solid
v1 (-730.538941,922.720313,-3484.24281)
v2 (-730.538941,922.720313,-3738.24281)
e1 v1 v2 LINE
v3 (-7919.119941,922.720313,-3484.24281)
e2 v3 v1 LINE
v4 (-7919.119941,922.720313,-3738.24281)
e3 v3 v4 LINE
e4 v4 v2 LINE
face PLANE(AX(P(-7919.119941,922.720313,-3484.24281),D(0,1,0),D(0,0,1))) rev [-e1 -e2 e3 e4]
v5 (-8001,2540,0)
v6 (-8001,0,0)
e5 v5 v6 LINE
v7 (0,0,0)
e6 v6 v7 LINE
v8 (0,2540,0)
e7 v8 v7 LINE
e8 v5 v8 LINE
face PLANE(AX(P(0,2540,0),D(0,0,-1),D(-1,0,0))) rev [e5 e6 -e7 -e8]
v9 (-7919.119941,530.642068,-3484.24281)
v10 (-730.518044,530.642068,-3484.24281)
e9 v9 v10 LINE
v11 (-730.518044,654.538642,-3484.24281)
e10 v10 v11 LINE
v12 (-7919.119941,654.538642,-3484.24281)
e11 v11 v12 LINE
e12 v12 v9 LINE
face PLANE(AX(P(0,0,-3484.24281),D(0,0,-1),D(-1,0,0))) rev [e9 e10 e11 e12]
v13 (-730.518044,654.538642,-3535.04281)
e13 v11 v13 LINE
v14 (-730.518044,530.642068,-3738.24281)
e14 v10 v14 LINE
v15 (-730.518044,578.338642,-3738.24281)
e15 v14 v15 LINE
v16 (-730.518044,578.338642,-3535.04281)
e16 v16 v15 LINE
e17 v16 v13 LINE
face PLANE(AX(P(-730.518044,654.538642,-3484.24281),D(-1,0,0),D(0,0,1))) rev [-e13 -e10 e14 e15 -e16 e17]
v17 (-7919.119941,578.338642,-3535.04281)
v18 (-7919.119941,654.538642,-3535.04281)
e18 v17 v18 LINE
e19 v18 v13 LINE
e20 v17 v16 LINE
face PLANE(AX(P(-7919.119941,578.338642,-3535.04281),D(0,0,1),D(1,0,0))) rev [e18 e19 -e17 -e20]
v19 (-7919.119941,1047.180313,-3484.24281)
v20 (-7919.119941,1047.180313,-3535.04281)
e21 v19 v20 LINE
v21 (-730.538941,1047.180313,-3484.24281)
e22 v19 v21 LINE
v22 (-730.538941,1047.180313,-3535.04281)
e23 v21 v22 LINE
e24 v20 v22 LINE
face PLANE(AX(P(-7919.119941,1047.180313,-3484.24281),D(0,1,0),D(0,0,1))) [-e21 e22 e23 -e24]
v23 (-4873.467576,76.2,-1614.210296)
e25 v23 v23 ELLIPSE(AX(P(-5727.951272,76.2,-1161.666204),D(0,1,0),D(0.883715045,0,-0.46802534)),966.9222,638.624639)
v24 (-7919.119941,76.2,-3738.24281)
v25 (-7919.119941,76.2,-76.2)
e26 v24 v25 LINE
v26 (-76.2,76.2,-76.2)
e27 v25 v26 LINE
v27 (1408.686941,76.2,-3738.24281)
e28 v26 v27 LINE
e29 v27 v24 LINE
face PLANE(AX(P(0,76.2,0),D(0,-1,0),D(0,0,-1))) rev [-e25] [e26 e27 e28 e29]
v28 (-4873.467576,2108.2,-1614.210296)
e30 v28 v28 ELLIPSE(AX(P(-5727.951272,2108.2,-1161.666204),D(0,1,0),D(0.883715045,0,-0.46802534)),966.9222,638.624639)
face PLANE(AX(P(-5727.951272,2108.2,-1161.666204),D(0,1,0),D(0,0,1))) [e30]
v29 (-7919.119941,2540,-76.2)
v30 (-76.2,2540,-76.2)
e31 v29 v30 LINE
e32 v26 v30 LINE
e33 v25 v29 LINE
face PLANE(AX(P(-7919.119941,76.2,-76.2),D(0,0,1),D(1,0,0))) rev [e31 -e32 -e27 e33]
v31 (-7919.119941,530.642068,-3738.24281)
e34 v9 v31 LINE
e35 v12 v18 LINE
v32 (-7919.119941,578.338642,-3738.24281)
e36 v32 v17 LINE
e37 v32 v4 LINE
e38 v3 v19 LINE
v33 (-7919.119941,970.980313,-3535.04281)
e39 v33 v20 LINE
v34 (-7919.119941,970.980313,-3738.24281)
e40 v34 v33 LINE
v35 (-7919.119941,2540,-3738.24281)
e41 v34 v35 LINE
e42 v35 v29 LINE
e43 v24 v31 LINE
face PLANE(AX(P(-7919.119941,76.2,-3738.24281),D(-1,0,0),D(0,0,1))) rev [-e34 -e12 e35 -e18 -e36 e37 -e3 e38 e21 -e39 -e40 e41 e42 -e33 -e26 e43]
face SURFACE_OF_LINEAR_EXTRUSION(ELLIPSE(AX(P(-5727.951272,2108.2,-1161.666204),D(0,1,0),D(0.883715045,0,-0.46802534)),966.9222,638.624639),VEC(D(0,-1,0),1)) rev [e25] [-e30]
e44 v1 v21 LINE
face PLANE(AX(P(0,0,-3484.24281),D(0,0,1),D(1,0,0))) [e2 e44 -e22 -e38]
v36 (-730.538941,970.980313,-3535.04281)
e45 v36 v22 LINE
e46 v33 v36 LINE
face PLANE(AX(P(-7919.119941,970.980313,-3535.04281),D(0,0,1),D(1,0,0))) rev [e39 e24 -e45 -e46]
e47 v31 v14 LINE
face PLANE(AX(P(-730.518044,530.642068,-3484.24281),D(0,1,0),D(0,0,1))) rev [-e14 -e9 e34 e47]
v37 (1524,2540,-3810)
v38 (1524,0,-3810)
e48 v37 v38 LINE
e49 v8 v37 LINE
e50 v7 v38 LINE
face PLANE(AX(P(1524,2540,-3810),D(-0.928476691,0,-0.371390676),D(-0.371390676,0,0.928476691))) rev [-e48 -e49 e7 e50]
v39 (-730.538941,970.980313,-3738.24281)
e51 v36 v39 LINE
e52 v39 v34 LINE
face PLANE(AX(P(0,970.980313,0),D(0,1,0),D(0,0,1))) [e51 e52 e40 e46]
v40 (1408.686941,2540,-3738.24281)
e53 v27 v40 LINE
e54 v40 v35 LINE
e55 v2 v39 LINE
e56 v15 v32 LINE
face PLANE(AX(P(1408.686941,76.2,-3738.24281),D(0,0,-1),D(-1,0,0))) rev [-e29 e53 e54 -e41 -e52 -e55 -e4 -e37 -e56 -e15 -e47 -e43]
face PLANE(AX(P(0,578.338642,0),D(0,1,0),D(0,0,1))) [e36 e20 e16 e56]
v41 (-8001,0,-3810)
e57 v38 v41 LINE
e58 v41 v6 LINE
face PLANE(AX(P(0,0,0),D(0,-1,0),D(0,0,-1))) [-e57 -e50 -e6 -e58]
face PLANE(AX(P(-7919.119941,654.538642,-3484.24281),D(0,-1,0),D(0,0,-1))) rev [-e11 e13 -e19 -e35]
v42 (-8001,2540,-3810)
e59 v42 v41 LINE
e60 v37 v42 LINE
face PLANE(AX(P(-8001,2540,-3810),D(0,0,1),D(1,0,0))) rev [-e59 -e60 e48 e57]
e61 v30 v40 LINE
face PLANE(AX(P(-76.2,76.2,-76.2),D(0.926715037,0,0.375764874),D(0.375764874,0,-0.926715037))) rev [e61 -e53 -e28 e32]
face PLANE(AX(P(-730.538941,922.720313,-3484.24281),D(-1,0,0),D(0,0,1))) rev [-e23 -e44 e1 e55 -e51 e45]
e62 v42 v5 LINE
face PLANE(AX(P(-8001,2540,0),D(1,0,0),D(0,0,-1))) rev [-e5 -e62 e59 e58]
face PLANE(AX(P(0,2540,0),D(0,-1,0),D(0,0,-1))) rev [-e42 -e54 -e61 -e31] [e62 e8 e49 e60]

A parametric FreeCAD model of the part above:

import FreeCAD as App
import Part
import Sketcher

V = App.Vector
Q = App.Units.Quantity


def add_polygon(sketch, points):
    """Adds a closed chain of lines whose ends are joined by coincident constraints."""
    first, n = sketch.GeometryCount, len(points)
    for a, b in zip(points, points[1:] + points[:1]):
        sketch.addGeometry(Part.LineSegment(App.Vector(*a, 0), App.Vector(*b, 0)), False)
    for i in range(n):
        sketch.addConstraint(Sketcher.Constraint("Coincident", first + i, 2, first + (i + 1) % n, 1))

doc = App.newDocument("Part")
params = doc.addObject("Spreadsheet::Sheet", "Params")
for row, (alias, value) in enumerate([
    ("sketch1_width", "315 in"),
    ("sketch1_width2", "375 in"),
    ("sketch1_height", "150 in"),
    ("pad1_length", "100 in"),
    ("pocket1_length", "97 in"),
    ("pad2_length", "10 in"),
    ("sketch4_height", "4.9 in"),
    ("sketch4_width", "283.015 in"),
    ("pad3_length", "10 in"),
    ("sketch5_height", "8 in"),
    ("sketch5_width", "283.015 in"),
    ("pocket2_length", "3 in"),
    ("sketch6_height", "8 in"),
    ("pocket3_length", "3 in"),
    ("pad4_length", "80 in"),
], start=1):
    params.set(f"A{row}", alias)
    params.set(f"B{row}", "=" + value)
    params.setAlias(f"B{row}", alias)

body = doc.addObject("PartDesign::Body", "Body")

sketch1 = body.newObject("Sketcher::SketchObject", "Sketch")
sketch1.AttachmentSupport = (doc.getObject("XZ_Plane"), [""])
sketch1.MapMode = "FlatFace"
add_polygon(sketch1, [(-8001, 0), (0, 0), (1524, -3810), (-8001, -3810)])
sketch1.addConstraint([
    Sketcher.Constraint("Horizontal", 0),
    Sketcher.Constraint("Horizontal", 2),
    Sketcher.Constraint("Vertical", 3),
    Sketcher.Constraint("Coincident", 0, 2, -1, 1),
    Sketcher.Constraint("DistanceX", 0, 1, 0, 2, Q("315 in")),
    Sketcher.Constraint("DistanceX", 2, 2, 2, 1, Q("375 in")),
    Sketcher.Constraint("DistanceY", 3, 1, 3, 2, Q("150 in")),
])
sketch1.setExpression("Constraints[8]", "Params.sketch1_width")
sketch1.setExpression("Constraints[9]", "Params.sketch1_width2")
sketch1.setExpression("Constraints[10]", "Params.sketch1_height")
pad1 = body.newObject("PartDesign::Pad", "Pad")
pad1.Profile = sketch1
pad1.setExpression("Length", "Params.pad1_length")
pad1.Reversed = True

sketch2 = body.newObject("Sketcher::SketchObject", "Sketch001")
sketch2.AttachmentSupport = (doc.getObject("XZ_Plane"), [""])
sketch2.MapMode = "FlatFace"
sketch2.AttachmentOffset = App.Placement(V(0, 0, -100 * 25.4), App.Rotation())
add_polygon(sketch2, [(-76.2, -76.2), (1408.686941, -3738.24281), (-7919.119941, -3738.24281), (-7919.119941, -76.2)])
sketch2.addConstraint([
    Sketcher.Constraint("Horizontal", 1),
    Sketcher.Constraint("Vertical", 2),
    Sketcher.Constraint("Horizontal", 3),
    Sketcher.Constraint("DistanceY", 2, 2, -1, 1, Q("3 in")),
    Sketcher.Constraint("DistanceX", 3, 2, -1, 1, Q("3 in")),
    Sketcher.Constraint("DistanceX", 1, 2, 1, 1, 9327.806882),
    Sketcher.Constraint("DistanceX", 3, 1, 3, 2, 7842.919941),
    Sketcher.Constraint("DistanceY", 2, 1, 2, 2, 3662.04281),
])
pocket1 = body.newObject("PartDesign::Pocket", "Pocket")
pocket1.Profile = sketch2
pocket1.setExpression("Length", "Params.pocket1_length")
pocket1.Reversed = True

sketch3 = body.newObject("Sketcher::SketchObject", "Sketch002")
sketch3.AttachmentSupport = (doc.getObject("XY_Plane"), [""])
sketch3.MapMode = "FlatFace"
sketch3.AttachmentOffset = App.Placement(V(0, 0, -3738.24281), App.Rotation())
add_polygon(sketch3, [(-7919.119941, 654.538642), (-7919.119941, 530.642068), (-730.518044, 530.642068), (-730.518044, 654.538642)])
sketch3.addConstraint([
    Sketcher.Constraint("Vertical", 0),
    Sketcher.Constraint("Horizontal", 1),
    Sketcher.Constraint("Vertical", 2),
    Sketcher.Constraint("Horizontal", 3),
    Sketcher.Constraint("DistanceX", 1, 1, 1, 2, 7188.601897),
    Sketcher.Constraint("DistanceY", 0, 2, 0, 1, 123.896574),
    Sketcher.Constraint("DistanceX", 0, 2, -1, 1, 7919.119941),
    Sketcher.Constraint("DistanceY", -1, 1, 0, 2, 530.642068),
])
pad2 = body.newObject("PartDesign::Pad", "Pad001")
pad2.Profile = sketch3
pad2.setExpression("Length", "Params.pad2_length")

sketch4 = body.newObject("Sketcher::SketchObject", "Sketch003")
sketch4.AttachmentSupport = (doc.getObject("XY_Plane"), [""])
sketch4.MapMode = "FlatFace"
sketch4.AttachmentOffset = App.Placement(V(0, 0, -3738.24281), App.Rotation())
add_polygon(sketch4, [(-7919.119941, 1047.180313), (-7919.119941, 922.720313), (-730.538941, 922.720313), (-730.538941, 1047.180313)])
sketch4.addConstraint([
    Sketcher.Constraint("Vertical", 0),
    Sketcher.Constraint("Horizontal", 1),
    Sketcher.Constraint("Vertical", 2),
    Sketcher.Constraint("Horizontal", 3),
    Sketcher.Constraint("DistanceY", 0, 2, 0, 1, Q("4.9 in")),
    Sketcher.Constraint("DistanceX", 1, 1, 1, 2, Q("283.015 in")),
    Sketcher.Constraint("DistanceX", 0, 2, -1, 1, 7919.119941),
    Sketcher.Constraint("DistanceY", -1, 1, 0, 2, 922.720313),
])
sketch4.setExpression("Constraints[8]", "Params.sketch4_height")
sketch4.setExpression("Constraints[9]", "Params.sketch4_width")
pad3 = body.newObject("PartDesign::Pad", "Pad002")
pad3.Profile = sketch4
pad3.setExpression("Length", "Params.pad3_length")

sketch5 = body.newObject("Sketcher::SketchObject", "Sketch004")
sketch5.AttachmentSupport = (doc.getObject("XZ_Plane"), [""])
sketch5.MapMode = "FlatFace"
sketch5.AttachmentOffset = App.Placement(V(0, 0, -1047.180313), App.Rotation())
add_polygon(sketch5, [(-7919.119941, -3738.24281), (-7919.119941, -3535.04281), (-730.538941, -3535.04281), (-730.538941, -3738.24281)])
sketch5.addConstraint([
    Sketcher.Constraint("Vertical", 0),
    Sketcher.Constraint("Horizontal", 1),
    Sketcher.Constraint("Vertical", 2),
    Sketcher.Constraint("Horizontal", 3),
    Sketcher.Constraint("DistanceY", 0, 1, 0, 2, Q("8 in")),
    Sketcher.Constraint("DistanceX", 1, 1, 1, 2, Q("283.015 in")),
    Sketcher.Constraint("DistanceX", 0, 2, -1, 1, 7919.119941),
    Sketcher.Constraint("DistanceY", 0, 2, -1, 1, 3535.04281),
])
sketch5.setExpression("Constraints[8]", "Params.sketch5_height")
sketch5.setExpression("Constraints[9]", "Params.sketch5_width")
pocket2 = body.newObject("PartDesign::Pocket", "Pocket001")
pocket2.Profile = sketch5
pocket2.setExpression("Length", "Params.pocket2_length")
pocket2.Reversed = True

sketch6 = body.newObject("Sketcher::SketchObject", "Sketch005")
sketch6.AttachmentSupport = (doc.getObject("XZ_Plane"), [""])
sketch6.MapMode = "FlatFace"
sketch6.AttachmentOffset = App.Placement(V(0, 0, -654.538642), App.Rotation())
add_polygon(sketch6, [(-7919.119941, -3738.24281), (-7919.119941, -3535.04281), (-730.518044, -3535.04281), (-730.518044, -3738.24281)])
sketch6.addConstraint([
    Sketcher.Constraint("Vertical", 0),
    Sketcher.Constraint("Horizontal", 1),
    Sketcher.Constraint("Vertical", 2),
    Sketcher.Constraint("Horizontal", 3),
    Sketcher.Constraint("DistanceY", 0, 1, 0, 2, Q("8 in")),
    Sketcher.Constraint("DistanceX", 1, 1, 1, 2, 7188.601897),
    Sketcher.Constraint("DistanceX", 0, 2, -1, 1, 7919.119941),
    Sketcher.Constraint("DistanceY", 0, 2, -1, 1, 3535.04281),
])
sketch6.setExpression("Constraints[8]", "Params.sketch6_height")
pocket3 = body.newObject("PartDesign::Pocket", "Pocket002")
pocket3.Profile = sketch6
pocket3.setExpression("Length", "Params.pocket3_length")
pocket3.Reversed = True

sketch7 = body.newObject("Sketcher::SketchObject", "Sketch006")
sketch7.AttachmentSupport = (doc.getObject("XZ_Plane"), [""])
sketch7.MapMode = "FlatFace"
sketch7.AttachmentOffset = App.Placement(V(0, 0, -3 * 25.4), App.Rotation())
sketch7.addGeometry(Part.Ellipse(V(-4873.467576, -1614.210296, 0), V(-5429.058759, -597.304003, 0), V(-5727.951272, -1161.666204, 0)), False)
sketch7.addConstraint(Sketcher.Constraint("Block", 0))
pad4 = body.newObject("PartDesign::Pad", "Pad003")
pad4.Profile = sketch7
pad4.setExpression("Length", "Params.pad4_length")
pad4.Reversed = True

doc.recompute()
